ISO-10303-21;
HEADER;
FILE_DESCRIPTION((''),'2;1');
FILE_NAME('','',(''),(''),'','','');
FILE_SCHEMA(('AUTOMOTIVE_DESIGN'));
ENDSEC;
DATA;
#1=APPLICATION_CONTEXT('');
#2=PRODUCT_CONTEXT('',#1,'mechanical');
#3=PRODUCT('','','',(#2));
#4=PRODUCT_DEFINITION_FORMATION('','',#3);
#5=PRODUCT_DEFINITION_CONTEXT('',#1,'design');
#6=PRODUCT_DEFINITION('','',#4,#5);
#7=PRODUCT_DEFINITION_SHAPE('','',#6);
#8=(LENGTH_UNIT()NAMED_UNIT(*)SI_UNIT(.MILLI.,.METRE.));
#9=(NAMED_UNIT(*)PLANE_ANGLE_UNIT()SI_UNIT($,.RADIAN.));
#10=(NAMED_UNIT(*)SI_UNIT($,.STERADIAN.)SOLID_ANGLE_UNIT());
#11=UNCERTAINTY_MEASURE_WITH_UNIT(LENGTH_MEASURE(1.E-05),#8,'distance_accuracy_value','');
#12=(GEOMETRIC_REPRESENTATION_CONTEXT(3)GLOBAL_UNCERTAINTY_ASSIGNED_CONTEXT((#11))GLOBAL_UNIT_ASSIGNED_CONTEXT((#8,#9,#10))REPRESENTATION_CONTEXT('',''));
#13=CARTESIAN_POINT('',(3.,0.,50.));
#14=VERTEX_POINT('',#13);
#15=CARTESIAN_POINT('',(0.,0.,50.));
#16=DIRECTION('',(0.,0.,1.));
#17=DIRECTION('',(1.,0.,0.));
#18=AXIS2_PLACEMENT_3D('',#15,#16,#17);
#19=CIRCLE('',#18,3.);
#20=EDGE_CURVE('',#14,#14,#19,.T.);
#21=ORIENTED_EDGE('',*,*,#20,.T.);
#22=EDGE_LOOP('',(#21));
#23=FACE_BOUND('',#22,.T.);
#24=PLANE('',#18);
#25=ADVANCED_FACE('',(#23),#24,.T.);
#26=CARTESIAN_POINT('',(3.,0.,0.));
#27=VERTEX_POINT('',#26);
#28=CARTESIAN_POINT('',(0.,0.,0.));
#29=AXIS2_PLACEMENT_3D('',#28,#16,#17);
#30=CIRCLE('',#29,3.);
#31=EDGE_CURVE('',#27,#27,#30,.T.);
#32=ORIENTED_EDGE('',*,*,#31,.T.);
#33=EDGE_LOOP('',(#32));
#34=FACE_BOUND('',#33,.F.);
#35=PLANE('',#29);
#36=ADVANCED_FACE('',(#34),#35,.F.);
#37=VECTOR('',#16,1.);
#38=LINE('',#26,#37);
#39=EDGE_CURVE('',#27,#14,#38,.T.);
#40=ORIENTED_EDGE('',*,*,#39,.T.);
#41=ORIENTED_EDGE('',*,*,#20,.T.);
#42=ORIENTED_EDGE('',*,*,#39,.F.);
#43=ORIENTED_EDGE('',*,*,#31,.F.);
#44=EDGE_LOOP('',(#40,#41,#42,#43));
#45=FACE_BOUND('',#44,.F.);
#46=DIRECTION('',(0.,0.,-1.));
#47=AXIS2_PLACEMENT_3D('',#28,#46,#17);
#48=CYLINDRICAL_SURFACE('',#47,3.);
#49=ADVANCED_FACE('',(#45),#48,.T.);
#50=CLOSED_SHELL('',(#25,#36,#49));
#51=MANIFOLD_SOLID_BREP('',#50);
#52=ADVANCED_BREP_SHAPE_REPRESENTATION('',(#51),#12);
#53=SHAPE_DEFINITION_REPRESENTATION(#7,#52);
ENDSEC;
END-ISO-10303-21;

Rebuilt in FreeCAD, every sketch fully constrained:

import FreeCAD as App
import Part
import Sketcher

V = App.Vector
Q = App.Units.Quantity

doc = App.newDocument("Part")
body = doc.addObject("PartDesign::Body", "Body")

# Sketch on XY plane
sketch1 = doc.addObject("Sketcher::SketchObject", "Sketch")
body.addObject(sketch1)
sketch1.AttachmentSupport = (doc.XY_Plane, [""])
sketch1.MapMode = "FlatFace"
sketch1.addGeometry(Part.Circle(V(0, 0, 0), V(0, 0, 1), 3), False)
sketch1.addConstraint([
    Sketcher.Constraint("Coincident", 0, 3, -1, 1),
    Sketcher.Constraint("Diameter", 0, Q("6 mm")),
])
pad1 = doc.addObject("PartDesign::Pad", "Pad")
body.addObject(pad1)
pad1.Profile = sketch1
pad1.Length = 50

doc.recompute()
